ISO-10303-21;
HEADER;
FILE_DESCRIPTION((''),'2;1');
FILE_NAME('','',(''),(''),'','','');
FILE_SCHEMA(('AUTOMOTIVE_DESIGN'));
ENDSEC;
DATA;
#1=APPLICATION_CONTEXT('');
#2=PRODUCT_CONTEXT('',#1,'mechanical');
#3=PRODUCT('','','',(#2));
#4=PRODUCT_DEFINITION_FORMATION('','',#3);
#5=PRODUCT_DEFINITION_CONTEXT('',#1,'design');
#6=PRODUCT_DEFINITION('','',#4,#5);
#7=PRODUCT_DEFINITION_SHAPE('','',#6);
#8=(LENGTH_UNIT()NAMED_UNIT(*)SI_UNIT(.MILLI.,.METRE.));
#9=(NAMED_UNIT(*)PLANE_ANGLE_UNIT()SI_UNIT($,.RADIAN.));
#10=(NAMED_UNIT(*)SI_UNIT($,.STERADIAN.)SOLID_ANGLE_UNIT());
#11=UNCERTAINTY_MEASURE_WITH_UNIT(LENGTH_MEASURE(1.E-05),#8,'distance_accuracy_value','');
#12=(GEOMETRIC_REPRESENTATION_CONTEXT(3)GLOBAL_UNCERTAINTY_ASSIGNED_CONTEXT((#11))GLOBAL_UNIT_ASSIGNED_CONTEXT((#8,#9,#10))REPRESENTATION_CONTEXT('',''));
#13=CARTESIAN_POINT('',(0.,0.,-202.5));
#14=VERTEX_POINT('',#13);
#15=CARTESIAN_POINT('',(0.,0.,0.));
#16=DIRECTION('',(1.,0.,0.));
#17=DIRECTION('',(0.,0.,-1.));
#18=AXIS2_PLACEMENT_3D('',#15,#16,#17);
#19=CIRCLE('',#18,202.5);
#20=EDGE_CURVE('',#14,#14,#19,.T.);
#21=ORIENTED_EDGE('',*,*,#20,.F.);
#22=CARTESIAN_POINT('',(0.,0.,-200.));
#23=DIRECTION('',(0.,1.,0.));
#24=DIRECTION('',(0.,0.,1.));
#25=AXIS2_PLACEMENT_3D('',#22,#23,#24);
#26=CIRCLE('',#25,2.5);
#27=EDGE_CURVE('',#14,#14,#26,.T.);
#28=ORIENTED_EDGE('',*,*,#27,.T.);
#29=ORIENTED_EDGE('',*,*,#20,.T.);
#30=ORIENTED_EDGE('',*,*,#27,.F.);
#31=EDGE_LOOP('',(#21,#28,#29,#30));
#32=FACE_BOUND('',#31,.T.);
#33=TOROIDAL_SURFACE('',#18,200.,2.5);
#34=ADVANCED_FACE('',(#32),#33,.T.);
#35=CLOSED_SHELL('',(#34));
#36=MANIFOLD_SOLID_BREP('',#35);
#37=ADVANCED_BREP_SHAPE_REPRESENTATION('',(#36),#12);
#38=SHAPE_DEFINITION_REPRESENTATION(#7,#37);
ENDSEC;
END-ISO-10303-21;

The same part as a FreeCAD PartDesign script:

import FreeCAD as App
import Part
import Sketcher
from FreeCAD import Vector

doc = App.newDocument("Part")
body = doc.addObject("PartDesign::Body", "Body")

# Sketch on XZ plane
sketch1 = body.newObject("Sketcher::SketchObject", "Sketch")
sketch1.AttachmentSupport = (doc.getObject("XZ_Plane"), [""])
sketch1.MapMode = "FlatFace"
sketch1.addGeometry(Part.Circle(Vector(0, -200, 0), Vector(0, 0, 1), 2.5), False)
sketch1.addConstraint(Sketcher.Constraint("PointOnObject", 0, 3, -2))
sketch1.addConstraint(Sketcher.Constraint("Diameter", 0, 5.0))
sketch1.addConstraint(Sketcher.Constraint("DistanceY", 0, 3, -1, 1, 200.0))

# Sketch on YZ plane
sketch2 = body.newObject("Sketcher::SketchObject", "Sketch001")
sketch2.AttachmentSupport = (doc.getObject("YZ_Plane"), [""])
sketch2.MapMode = "FlatFace"
sketch2.addGeometry(Part.Circle(Vector(0, 0, 0), Vector(0, 0, 1), 200), False)
sketch2.addConstraint(Sketcher.Constraint("Coincident", 0, 3, -1, 1))
sketch2.addConstraint(Sketcher.Constraint("Diameter", 0, 400.0))
doc.recompute()

additivepipe = body.newObject("PartDesign::AdditivePipe", "AdditivePipe")
additivepipe.Profile = sketch1
additivepipe.Spine = (sketch2, ["Edge1"])

doc.recompute()
